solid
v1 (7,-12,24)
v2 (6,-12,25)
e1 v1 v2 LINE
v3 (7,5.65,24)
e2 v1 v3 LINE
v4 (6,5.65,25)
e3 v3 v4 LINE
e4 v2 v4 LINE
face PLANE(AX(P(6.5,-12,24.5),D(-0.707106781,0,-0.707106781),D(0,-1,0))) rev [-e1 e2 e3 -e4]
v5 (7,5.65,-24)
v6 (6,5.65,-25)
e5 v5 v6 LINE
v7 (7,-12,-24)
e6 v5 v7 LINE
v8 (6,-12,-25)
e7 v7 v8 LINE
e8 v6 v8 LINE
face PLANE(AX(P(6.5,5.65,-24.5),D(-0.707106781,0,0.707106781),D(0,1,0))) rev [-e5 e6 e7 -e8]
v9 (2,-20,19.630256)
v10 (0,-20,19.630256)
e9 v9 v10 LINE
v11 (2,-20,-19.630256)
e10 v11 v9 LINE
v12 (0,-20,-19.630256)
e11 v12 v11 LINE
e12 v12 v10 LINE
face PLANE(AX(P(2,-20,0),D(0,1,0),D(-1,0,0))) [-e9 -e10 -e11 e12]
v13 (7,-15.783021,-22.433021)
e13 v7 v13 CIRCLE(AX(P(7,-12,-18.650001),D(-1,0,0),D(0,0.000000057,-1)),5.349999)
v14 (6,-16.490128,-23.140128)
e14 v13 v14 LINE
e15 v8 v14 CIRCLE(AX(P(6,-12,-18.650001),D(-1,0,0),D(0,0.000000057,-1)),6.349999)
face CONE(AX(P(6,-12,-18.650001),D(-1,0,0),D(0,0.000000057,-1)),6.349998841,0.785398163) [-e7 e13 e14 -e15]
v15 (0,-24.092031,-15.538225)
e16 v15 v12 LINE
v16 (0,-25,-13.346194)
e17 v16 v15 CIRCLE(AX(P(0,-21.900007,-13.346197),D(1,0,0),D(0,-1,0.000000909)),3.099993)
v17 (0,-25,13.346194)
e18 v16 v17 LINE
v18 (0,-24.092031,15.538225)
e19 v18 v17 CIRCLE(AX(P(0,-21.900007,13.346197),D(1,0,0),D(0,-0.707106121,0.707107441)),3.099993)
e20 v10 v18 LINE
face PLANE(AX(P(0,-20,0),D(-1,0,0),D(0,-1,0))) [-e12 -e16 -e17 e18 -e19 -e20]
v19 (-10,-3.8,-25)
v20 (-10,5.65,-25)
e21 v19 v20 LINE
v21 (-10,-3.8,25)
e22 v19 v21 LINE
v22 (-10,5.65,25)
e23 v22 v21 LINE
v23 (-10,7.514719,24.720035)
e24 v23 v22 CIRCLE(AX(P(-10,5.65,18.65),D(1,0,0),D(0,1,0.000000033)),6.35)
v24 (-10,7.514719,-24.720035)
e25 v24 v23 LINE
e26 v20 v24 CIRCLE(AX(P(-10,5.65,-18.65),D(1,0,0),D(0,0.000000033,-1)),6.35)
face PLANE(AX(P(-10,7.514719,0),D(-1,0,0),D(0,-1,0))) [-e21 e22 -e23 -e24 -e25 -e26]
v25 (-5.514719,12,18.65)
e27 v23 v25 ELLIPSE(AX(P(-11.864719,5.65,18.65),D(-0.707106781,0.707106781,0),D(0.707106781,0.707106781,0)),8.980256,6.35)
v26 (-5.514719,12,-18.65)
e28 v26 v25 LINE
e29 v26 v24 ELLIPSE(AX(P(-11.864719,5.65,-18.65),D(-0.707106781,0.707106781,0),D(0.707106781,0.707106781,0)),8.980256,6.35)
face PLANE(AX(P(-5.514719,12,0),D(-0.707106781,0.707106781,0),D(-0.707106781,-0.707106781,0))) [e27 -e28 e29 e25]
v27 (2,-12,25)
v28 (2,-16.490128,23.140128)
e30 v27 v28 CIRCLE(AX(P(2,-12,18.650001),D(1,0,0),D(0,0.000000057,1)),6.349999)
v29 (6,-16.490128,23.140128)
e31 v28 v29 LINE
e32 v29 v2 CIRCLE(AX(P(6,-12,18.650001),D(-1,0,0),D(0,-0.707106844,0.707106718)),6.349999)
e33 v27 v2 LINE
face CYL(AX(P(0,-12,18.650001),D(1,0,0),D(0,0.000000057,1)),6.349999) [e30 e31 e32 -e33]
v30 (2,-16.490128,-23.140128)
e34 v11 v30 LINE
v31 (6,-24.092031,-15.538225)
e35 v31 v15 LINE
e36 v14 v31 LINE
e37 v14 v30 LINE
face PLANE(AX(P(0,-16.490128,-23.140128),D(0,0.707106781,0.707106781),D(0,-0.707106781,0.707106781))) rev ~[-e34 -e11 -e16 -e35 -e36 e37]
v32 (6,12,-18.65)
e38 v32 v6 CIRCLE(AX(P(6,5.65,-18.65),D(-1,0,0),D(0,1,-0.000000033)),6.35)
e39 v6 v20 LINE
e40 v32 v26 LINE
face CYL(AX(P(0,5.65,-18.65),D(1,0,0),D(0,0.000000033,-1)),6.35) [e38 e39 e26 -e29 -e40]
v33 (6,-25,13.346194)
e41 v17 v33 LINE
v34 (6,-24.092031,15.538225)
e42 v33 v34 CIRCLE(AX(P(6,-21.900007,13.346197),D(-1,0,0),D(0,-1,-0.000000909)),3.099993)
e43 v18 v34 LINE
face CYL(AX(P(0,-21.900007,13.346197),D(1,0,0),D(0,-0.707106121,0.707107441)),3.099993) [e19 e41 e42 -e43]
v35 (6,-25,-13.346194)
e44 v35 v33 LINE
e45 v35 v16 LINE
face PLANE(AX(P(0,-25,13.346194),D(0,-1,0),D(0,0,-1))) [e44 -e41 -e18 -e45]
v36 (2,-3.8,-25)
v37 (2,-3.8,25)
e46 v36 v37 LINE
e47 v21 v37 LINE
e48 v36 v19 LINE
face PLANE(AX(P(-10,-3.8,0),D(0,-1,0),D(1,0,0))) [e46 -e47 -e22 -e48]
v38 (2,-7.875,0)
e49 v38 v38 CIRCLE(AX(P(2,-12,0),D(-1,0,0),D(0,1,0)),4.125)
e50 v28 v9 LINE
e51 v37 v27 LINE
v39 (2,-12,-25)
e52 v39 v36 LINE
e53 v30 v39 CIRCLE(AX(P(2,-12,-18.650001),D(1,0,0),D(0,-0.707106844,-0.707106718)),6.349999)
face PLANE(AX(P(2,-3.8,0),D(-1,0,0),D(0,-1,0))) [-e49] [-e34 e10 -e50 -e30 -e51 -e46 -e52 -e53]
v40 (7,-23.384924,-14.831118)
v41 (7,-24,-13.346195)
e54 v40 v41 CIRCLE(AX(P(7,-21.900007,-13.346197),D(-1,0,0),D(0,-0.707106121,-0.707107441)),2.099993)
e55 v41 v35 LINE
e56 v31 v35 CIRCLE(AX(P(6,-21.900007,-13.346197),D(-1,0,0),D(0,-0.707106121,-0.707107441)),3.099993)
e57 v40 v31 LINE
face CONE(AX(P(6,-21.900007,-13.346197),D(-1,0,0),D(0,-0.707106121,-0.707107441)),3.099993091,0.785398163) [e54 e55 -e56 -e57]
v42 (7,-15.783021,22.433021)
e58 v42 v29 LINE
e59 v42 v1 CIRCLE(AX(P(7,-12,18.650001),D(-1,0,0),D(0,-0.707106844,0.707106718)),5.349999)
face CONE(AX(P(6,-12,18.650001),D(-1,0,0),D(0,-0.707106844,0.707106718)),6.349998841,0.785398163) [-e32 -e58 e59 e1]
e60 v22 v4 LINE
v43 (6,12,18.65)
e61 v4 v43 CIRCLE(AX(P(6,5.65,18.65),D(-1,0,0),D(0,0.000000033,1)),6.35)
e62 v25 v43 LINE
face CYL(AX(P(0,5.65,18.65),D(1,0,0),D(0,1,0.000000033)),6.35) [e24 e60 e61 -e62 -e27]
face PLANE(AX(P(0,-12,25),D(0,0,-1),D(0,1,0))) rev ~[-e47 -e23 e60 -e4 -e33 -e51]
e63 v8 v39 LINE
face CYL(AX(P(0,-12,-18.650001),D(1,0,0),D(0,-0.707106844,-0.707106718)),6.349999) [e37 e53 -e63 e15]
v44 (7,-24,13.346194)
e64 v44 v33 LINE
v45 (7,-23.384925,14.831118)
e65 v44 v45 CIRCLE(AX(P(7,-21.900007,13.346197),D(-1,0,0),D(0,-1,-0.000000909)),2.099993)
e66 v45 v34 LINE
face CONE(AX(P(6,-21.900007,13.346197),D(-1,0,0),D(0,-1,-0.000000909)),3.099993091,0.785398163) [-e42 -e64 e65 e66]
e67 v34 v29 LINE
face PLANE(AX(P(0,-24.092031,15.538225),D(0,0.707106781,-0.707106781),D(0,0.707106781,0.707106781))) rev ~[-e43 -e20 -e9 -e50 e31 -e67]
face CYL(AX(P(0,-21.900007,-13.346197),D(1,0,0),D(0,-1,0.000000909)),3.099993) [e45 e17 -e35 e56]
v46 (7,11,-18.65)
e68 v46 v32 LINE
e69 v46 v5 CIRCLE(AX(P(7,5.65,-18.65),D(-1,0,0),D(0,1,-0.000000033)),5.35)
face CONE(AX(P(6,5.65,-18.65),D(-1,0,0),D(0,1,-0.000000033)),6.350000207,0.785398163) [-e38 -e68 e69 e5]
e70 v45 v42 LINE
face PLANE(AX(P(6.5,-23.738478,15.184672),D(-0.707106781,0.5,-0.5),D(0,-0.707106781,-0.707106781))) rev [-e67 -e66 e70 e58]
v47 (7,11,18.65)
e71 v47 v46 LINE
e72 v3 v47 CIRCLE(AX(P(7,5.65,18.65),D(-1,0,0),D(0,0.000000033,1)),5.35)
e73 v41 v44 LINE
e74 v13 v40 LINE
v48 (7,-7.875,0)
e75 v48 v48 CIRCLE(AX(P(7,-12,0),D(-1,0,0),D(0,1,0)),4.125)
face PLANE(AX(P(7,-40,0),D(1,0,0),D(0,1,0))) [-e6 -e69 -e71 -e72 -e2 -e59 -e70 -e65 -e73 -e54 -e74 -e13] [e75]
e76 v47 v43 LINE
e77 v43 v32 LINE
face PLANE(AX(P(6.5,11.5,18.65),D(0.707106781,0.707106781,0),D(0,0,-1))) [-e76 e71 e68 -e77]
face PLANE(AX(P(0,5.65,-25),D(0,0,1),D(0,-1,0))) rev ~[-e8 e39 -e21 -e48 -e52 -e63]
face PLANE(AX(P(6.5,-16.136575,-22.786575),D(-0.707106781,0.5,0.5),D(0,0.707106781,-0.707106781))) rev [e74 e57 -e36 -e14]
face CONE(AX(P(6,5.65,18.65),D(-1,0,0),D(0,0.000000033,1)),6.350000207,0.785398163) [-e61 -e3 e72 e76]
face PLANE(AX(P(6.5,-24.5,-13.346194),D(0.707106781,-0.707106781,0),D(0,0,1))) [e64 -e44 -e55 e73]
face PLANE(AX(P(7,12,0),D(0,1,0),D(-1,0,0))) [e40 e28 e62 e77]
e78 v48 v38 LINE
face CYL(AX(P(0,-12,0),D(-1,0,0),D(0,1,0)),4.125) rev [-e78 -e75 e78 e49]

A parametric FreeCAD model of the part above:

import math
import FreeCAD as App
import Part
import Sketcher
from FreeCAD import Vector
Q = App.Units.Quantity


def edges_at(feature, points):
    """Names of the edges that pass closest to the given points."""
    edges = feature.Shape.Edges
    near = lambda p: min(range(len(edges)), key=lambda i: edges[i].distToShape(Part.Vertex(*p))[0])
    return sorted({f"Edge{near(p) + 1}" for p in points})


def add_polygon(sketch, points):
    """Adds a closed chain of lines whose ends are joined by coincident constraints."""
    first, n = sketch.GeometryCount, len(points)
    for a, b in zip(points, points[1:] + points[:1]):
        sketch.addGeometry(Part.LineSegment(App.Vector(*a, 0), App.Vector(*b, 0)), False)
    for i in range(n):
        sketch.addConstraint(Sketcher.Constraint("Coincident", first + i, 2, first + (i + 1) % n, 1))

doc = App.newDocument("Part")
params = doc.addObject("Spreadsheet::Sheet", "Params")
for row, (alias, value) in enumerate([
    ("sketch1_diameter", "8.25 mm"),
    ("sketch1_radius", "6.35 mm"),
    ("sketch1_height", "37.3 mm"),
    ("pad1_length", "50 mm"),
    ("sketch2_width", "12 mm"),
    ("sketch2_width2", "2 mm"),
    ("sketch2_width3", "7 mm"),
    ("sketch2_height", "20 mm"),
    ("sketch2_height2", "52 mm"),
    ("pad2_length", "100 mm"),
    ("chamfer_size", "1 mm"),
], start=1):
    params.set(f"A{row}", alias)
    params.set(f"B{row}", "=" + value)
    params.setAlias(f"B{row}", alias)

body = doc.addObject("PartDesign::Body", "Body")

sketch1 = body.newObject("Sketcher::SketchObject", "Sketch")
sketch1.AttachmentSupport = (doc.getObject("YZ_Plane"), [""])
sketch1.MapMode = "FlatFace"
sketch1.addGeometry([
    Part.LineSegment(Vector(12, -18.65, 0), Vector(12, 18.65, 0)),
    Part.ArcOfCircle(Part.Circle(Vector(5.65, 18.65, 0), Vector(0, 0, 1), 6.35), math.radians(0.000002), math.radians(89.999998)),
    Part.LineSegment(Vector(5.65, 25, 0), Vector(-12, 25, 0)),
    Part.ArcOfCircle(Part.Circle(Vector(-12, 18.650001, 0), Vector(0, 0, 1), 6.349999), math.radians(89.999997), math.radians(135.000005)),
    Part.LineSegment(Vector(-16.490128, 23.140128, 0), Vector(-24.092031, 15.538225, 0)),
    Part.ArcOfCircle(Part.Circle(Vector(-21.900007, 13.346197, 0), Vector(0, 0, 1), 3.099993), math.radians(134.999947), math.radians(180.000052)),
    Part.LineSegment(Vector(-25, 13.346194, 0), Vector(-25, -13.346194, 0)),
    Part.ArcOfCircle(Part.Circle(Vector(-21.900007, -13.346197, 0), Vector(0, 0, 1), 3.099993), math.radians(179.999948), math.radians(225.000053)),
    Part.LineSegment(Vector(-24.092031, -15.538225, 0), Vector(-16.490128, -23.140128, 0)),
    Part.ArcOfCircle(Part.Circle(Vector(-12, -18.650001, 0), Vector(0, 0, 1), 6.349999), math.radians(-135.000005), math.radians(-89.999997)),
    Part.LineSegment(Vector(-12, -25, 0), Vector(5.65, -25, 0)),
    Part.ArcOfCircle(Part.Circle(Vector(5.65, -18.65, 0), Vector(0, 0, 1), 6.35), math.radians(-89.999998), math.radians(-0.000002)),
    Part.Circle(Vector(-12, 0, 0), Vector(0, 0, 1), 4.125),
], False)
sketch1.addConstraint([
    Sketcher.Constraint("Tangent", 0, 2, 1, 1),
    Sketcher.Constraint("Tangent", 1, 2, 2, 1),
    Sketcher.Constraint("Tangent", 2, 2, 3, 1),
    Sketcher.Constraint("Tangent", 3, 2, 4, 1),
    Sketcher.Constraint("Tangent", 4, 2, 5, 1),
    Sketcher.Constraint("Tangent", 5, 2, 6, 1),
    Sketcher.Constraint("Tangent", 6, 2, 7, 1),
    Sketcher.Constraint("Tangent", 7, 2, 8, 1),
    Sketcher.Constraint("Tangent", 8, 2, 9, 1),
    Sketcher.Constraint("Tangent", 9, 2, 10, 1),
    Sketcher.Constraint("Tangent", 10, 2, 11, 1),
    Sketcher.Constraint("Tangent", 11, 2, 0, 1),
    Sketcher.Constraint("Vertical", 0),
    Sketcher.Constraint("Horizontal", 2),
    Sketcher.Constraint("Vertical", 6),
    Sketcher.Constraint("Horizontal", 10),
    Sketcher.Constraint("Equal", 1, 3),
    Sketcher.Constraint("Equal", 5, 7),
    Sketcher.Constraint("Equal", 3, 9),
    Sketcher.Constraint("Equal", 9, 11),
    Sketcher.Constraint("Symmetric", 3, 3, 9, 3, -1),
    Sketcher.Constraint("PointOnObject", 12, 3, -1),
    Sketcher.Constraint("Perpendicular", 4, 8),
    Sketcher.Constraint("Vertical", 9, 3, 12, 3),
    Sketcher.Constraint("Vertical", 4, 2, 7, 2),
    Sketcher.Constraint("Diameter", 12, 8.25),
    Sketcher.Constraint("Radius", 1, 6.35),
    Sketcher.Constraint("DistanceY", 0, 1, 0, 2, 37.3),
    Sketcher.Constraint("DistanceX", 3, 3, -1, 1, 12.0),
    Sketcher.Constraint("DistanceX", -1, 1, 0, 2, 12.0),
    Sketcher.Constraint("DistanceX", 5, 2, -1, 1, 25.0),
    Sketcher.Constraint("Radius", 5, 3.099993),
])
sketch1.setExpression("Constraints[25]", "Params.sketch1_diameter")
sketch1.setExpression("Constraints[26]", "Params.sketch1_radius")
sketch1.setExpression("Constraints[27]", "Params.sketch1_height")
pad1 = body.newObject("PartDesign::Pad", "Pad")
pad1.Profile = sketch1
pad1.setExpression("Length", "Params.pad1_length")
pad1.Midplane = True
body2 = doc.addObject("PartDesign::Body", "Body001")

sketch2 = body2.newObject("Sketcher::SketchObject", "Sketch001")
sketch2.AttachmentSupport = (doc.getObject("XY_Plane001"), [""])
sketch2.MapMode = "FlatFace"
add_polygon(sketch2, [(7, 12), (-5.514719, 12), (-10, 7.514719), (-10, -3.8), (2, -3.8), (2, -20), (0, -20), (0, -40), (7, -40)])
sketch2.addConstraint([
    Sketcher.Constraint("Horizontal", 0),
    Sketcher.Constraint("Vertical", 2),
    Sketcher.Constraint("Horizontal", 3),
    Sketcher.Constraint("Vertical", 4),
    Sketcher.Constraint("Horizontal", 5),
    Sketcher.Constraint("Vertical", 6),
    Sketcher.Constraint("Horizontal", 7),
    Sketcher.Constraint("Vertical", 8),
    Sketcher.Constraint("PointOnObject", 5, 2, -2),
    Sketcher.Constraint("DistanceX", 3, 1, 3, 2, 12.0),
    Sketcher.Constraint("DistanceX", 5, 2, 5, 1, 2.0),
    Sketcher.Constraint("DistanceX", 7, 1, 7, 2, 7.0),
    Sketcher.Constraint("DistanceY", 6, 2, 6, 1, 20.0),
    Sketcher.Constraint("DistanceY", 8, 1, 8, 2, 52.0),
    Sketcher.Constraint("Angle", 1, Q("-135 deg")),
    Sketcher.Constraint("DistanceY", 4, 2, 4, 1, 16.2),
    Sketcher.Constraint("DistanceY", -1, 1, 0, 2, 12.0),
    Sketcher.Constraint("DistanceX", 0, 2, 0, 1, 12.514719),
])
sketch2.setExpression("Constraints[18]", "Params.sketch2_width")
sketch2.setExpression("Constraints[19]", "Params.sketch2_width2")
sketch2.setExpression("Constraints[20]", "Params.sketch2_width3")
sketch2.setExpression("Constraints[21]", "Params.sketch2_height")
sketch2.setExpression("Constraints[22]", "Params.sketch2_height2")
pad2 = body2.newObject("PartDesign::Pad", "Pad001")
pad2.Profile = sketch2
pad2.setExpression("Length", "Params.pad2_length")
pad2.Midplane = True
doc.recompute()

boolean = body2.newObject("PartDesign::Boolean", "Boolean")
boolean.Type = "Common"
boolean.addObjects([body])
doc.recompute()

chamfer = body2.newObject("PartDesign::Chamfer", "Chamfer")
chamfer.Base = (boolean, edges_at(boolean, [(7, -3.175, 25)]))
chamfer.setExpression("Size", "Params.chamfer_size")

doc.recompute()
